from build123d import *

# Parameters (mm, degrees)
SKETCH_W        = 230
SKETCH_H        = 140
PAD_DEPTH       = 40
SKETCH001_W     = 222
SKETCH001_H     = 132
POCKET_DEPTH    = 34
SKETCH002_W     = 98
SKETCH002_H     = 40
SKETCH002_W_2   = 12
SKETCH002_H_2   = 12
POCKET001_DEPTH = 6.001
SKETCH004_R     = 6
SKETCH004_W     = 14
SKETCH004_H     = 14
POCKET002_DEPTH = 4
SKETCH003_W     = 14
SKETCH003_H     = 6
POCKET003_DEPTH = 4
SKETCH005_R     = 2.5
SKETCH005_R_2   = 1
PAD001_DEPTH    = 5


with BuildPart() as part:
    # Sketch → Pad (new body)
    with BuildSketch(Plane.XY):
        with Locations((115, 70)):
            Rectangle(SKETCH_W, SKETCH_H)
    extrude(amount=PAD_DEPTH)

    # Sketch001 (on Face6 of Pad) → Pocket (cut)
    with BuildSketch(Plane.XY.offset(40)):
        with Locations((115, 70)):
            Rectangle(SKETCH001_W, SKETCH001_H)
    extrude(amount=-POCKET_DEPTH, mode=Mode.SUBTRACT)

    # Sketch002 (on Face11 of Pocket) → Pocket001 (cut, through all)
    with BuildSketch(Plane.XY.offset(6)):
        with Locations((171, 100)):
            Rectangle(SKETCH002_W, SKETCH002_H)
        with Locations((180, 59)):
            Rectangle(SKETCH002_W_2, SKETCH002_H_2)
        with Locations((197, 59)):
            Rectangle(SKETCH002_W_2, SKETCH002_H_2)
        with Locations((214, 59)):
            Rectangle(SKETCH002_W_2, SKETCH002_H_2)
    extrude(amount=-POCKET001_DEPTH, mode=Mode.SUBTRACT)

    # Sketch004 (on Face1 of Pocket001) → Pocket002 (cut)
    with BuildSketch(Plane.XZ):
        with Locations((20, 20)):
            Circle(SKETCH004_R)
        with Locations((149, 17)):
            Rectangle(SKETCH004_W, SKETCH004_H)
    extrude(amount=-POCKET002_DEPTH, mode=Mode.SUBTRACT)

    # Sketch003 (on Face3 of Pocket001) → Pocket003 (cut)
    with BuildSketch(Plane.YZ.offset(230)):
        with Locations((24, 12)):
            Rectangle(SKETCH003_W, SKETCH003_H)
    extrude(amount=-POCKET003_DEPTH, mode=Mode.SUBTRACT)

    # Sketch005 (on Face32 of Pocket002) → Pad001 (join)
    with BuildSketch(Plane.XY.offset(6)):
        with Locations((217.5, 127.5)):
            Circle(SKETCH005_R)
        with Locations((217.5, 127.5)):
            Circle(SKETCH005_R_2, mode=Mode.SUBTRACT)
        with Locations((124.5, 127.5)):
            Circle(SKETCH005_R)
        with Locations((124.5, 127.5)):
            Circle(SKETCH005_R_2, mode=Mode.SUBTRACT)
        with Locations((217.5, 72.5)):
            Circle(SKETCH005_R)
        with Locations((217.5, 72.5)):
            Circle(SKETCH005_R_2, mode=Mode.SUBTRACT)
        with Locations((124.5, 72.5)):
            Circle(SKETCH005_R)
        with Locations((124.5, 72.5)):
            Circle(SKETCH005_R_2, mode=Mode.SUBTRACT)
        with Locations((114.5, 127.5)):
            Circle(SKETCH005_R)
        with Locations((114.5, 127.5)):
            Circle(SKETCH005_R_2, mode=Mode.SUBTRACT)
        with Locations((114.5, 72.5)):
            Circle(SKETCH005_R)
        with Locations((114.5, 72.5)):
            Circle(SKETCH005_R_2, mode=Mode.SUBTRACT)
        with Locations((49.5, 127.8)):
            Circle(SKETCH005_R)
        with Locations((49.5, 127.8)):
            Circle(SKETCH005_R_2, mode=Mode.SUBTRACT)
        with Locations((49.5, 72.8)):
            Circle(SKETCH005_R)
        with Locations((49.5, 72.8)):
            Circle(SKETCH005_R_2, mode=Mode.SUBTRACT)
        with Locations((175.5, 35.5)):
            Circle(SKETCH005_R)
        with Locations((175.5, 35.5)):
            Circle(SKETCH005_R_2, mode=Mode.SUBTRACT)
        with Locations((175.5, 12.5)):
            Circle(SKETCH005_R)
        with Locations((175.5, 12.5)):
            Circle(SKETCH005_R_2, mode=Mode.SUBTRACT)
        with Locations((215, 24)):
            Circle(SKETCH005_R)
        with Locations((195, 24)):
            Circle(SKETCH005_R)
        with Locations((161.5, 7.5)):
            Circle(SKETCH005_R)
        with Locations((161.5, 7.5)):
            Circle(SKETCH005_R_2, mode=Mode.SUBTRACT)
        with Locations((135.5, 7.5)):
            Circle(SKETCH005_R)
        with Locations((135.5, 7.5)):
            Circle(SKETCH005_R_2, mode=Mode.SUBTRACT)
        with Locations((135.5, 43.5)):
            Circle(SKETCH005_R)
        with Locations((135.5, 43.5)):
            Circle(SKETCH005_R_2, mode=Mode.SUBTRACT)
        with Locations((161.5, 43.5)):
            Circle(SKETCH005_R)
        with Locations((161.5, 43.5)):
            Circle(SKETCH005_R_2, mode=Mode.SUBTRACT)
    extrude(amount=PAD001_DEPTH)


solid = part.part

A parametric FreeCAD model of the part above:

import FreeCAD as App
import Part
import Sketcher
Q = App.Units.Quantity

doc = App.newDocument("Part")
body = doc.addObject("PartDesign::Body", "Body")

# Sketch on XY plane
sketch1 = body.newObject("Sketcher::SketchObject", "Sketch")
sketch1.AttachmentSupport = (doc.getObject("XY_Plane"), [""])
sketch1.MapMode = "FlatFace"
sketch1.addGeometry(Part.LineSegment(App.Vector(0, 140, 0), App.Vector(0, 0, 0)), False)
sketch1.addGeometry(Part.LineSegment(App.Vector(0, 0, 0), App.Vector(230, 0, 0)), False)
sketch1.addGeometry(Part.LineSegment(App.Vector(230, 0, 0), App.Vector(230, 140, 0)), False)
sketch1.addGeometry(Part.LineSegment(App.Vector(230, 140, 0), App.Vector(0, 140, 0)), False)
sketch1.addConstraint(Sketcher.Constraint("Coincident", 0, 2, 1, 1))
sketch1.addConstraint(Sketcher.Constraint("Coincident", 1, 2, 2, 1))
sketch1.addConstraint(Sketcher.Constraint("Coincident", 2, 2, 3, 1))
sketch1.addConstraint(Sketcher.Constraint("Coincident", 3, 2, 0, 1))
sketch1.addConstraint(Sketcher.Constraint("Vertical", 0))
sketch1.addConstraint(Sketcher.Constraint("Horizontal", 1))
sketch1.addConstraint(Sketcher.Constraint("Vertical", 2))
sketch1.addConstraint(Sketcher.Constraint("Horizontal", 3))
sketch1.addConstraint(Sketcher.Constraint("Coincident", 0, 2, -1, 1))
sketch1.addConstraint(Sketcher.Constraint("DistanceX", 1, 1, 1, 2, Q("230 mm")))
sketch1.addConstraint(Sketcher.Constraint("DistanceY", 0, 2, 0, 1, Q("140 mm")))
pad1 = body.newObject("PartDesign::Pad", "Pad")
pad1.Profile = sketch1
pad1.Length = 40

# Sketch on XY plane
sketch2 = body.newObject("Sketcher::SketchObject", "Sketch001")
sketch2.AttachmentSupport = (doc.getObject("XY_Plane"), [""])
sketch2.MapMode = "FlatFace"
sketch2.AttachmentOffset = App.Placement(App.Vector(0, 0, 40), App.Rotation())
sketch2.addGeometry(Part.LineSegment(App.Vector(4, 136, 0), App.Vector(4, 4, 0)), False)
sketch2.addGeometry(Part.LineSegment(App.Vector(4, 4, 0), App.Vector(226, 4, 0)), False)
sketch2.addGeometry(Part.LineSegment(App.Vector(226, 4, 0), App.Vector(226, 136, 0)), False)
sketch2.addGeometry(Part.LineSegment(App.Vector(226, 136, 0), App.Vector(4, 136, 0)), False)
sketch2.addConstraint(Sketcher.Constraint("Coincident", 0, 2, 1, 1))
sketch2.addConstraint(Sketcher.Constraint("Coincident", 1, 2, 2, 1))
sketch2.addConstraint(Sketcher.Constraint("Coincident", 2, 2, 3, 1))
sketch2.addConstraint(Sketcher.Constraint("Coincident", 3, 2, 0, 1))
sketch2.addConstraint(Sketcher.Constraint("Vertical", 0))
sketch2.addConstraint(Sketcher.Constraint("Horizontal", 1))
sketch2.addConstraint(Sketcher.Constraint("Vertical", 2))
sketch2.addConstraint(Sketcher.Constraint("Horizontal", 3))
sketch2.addConstraint(Sketcher.Constraint("DistanceX", 1, 1, 1, 2, Q("222 mm")))
sketch2.addConstraint(Sketcher.Constraint("DistanceY", 0, 2, 0, 1, Q("132 mm")))
sketch2.addConstraint(Sketcher.Constraint("DistanceX", -1, 1, 0, 2, Q("4 mm")))
sketch2.addConstraint(Sketcher.Constraint("DistanceY", -1, 1, 0, 2, Q("4 mm")))
pocket1 = body.newObject("PartDesign::Pocket", "Pocket")
pocket1.Profile = sketch2
pocket1.Length = 34

# Sketch on XY plane
sketch3 = body.newObject("Sketcher::SketchObject", "Sketch002")
sketch3.AttachmentSupport = (doc.getObject("XY_Plane"), [""])
sketch3.MapMode = "FlatFace"
sketch3.AttachmentOffset = App.Placement(App.Vector(0, 0, 6), App.Rotation())
sketch3.addGeometry(Part.LineSegment(App.Vector(122, 120, 0), App.Vector(122, 80, 0)), False)
sketch3.addGeometry(Part.LineSegment(App.Vector(122, 80, 0), App.Vector(220, 80, 0)), False)
sketch3.addGeometry(Part.LineSegment(App.Vector(220, 80, 0), App.Vector(220, 120, 0)), False)
sketch3.addGeometry(Part.LineSegment(App.Vector(220, 120, 0), App.Vector(122, 120, 0)), False)
sketch3.addGeometry(Part.LineSegment(App.Vector(174, 65, 0), App.Vector(174, 53, 0)), False)
sketch3.addGeometry(Part.LineSegment(App.Vector(174, 53, 0), App.Vector(186, 53, 0)), False)
sketch3.addGeometry(Part.LineSegment(App.Vector(186, 53, 0), App.Vector(186, 65, 0)), False)
sketch3.addGeometry(Part.LineSegment(App.Vector(186, 65, 0), App.Vector(174, 65, 0)), False)
sketch3.addGeometry(Part.LineSegment(App.Vector(191, 65, 0), App.Vector(191, 53, 0)), False)
sketch3.addGeometry(Part.LineSegment(App.Vector(191, 53, 0), App.Vector(203, 53, 0)), False)
sketch3.addGeometry(Part.LineSegment(App.Vector(203, 53, 0), App.Vector(203, 65, 0)), False)
sketch3.addGeometry(Part.LineSegment(App.Vector(203, 65, 0), App.Vector(191, 65, 0)), False)
sketch3.addGeometry(Part.LineSegment(App.Vector(208, 65, 0), App.Vector(208, 53, 0)), False)
sketch3.addGeometry(Part.LineSegment(App.Vector(208, 53, 0), App.Vector(220, 53, 0)), False)
sketch3.addGeometry(Part.LineSegment(App.Vector(220, 53, 0), App.Vector(220, 65, 0)), False)
sketch3.addGeometry(Part.LineSegment(App.Vector(220, 65, 0), App.Vector(208, 65, 0)), False)
sketch3.addConstraint(Sketcher.Constraint("Coincident", 0, 2, 1, 1))
sketch3.addConstraint(Sketcher.Constraint("Coincident", 1, 2, 2, 1))
sketch3.addConstraint(Sketcher.Constraint("Coincident", 2, 2, 3, 1))
sketch3.addConstraint(Sketcher.Constraint("Coincident", 3, 2, 0, 1))
sketch3.addConstraint(Sketcher.Constraint("Coincident", 4, 2, 5, 1))
sketch3.addConstraint(Sketcher.Constraint("Coincident", 5, 2, 6, 1))
sketch3.addConstraint(Sketcher.Constraint("Coincident", 6, 2, 7, 1))
sketch3.addConstraint(Sketcher.Constraint("Coincident", 7, 2, 4, 1))
sketch3.addConstraint(Sketcher.Constraint("Coincident", 8, 2, 9, 1))
sketch3.addConstraint(Sketcher.Constraint("Coincident", 9, 2, 10, 1))
sketch3.addConstraint(Sketcher.Constraint("Coincident", 10, 2, 11, 1))
sketch3.addConstraint(Sketcher.Constraint("Coincident", 11, 2, 8, 1))
sketch3.addConstraint(Sketcher.Constraint("Coincident", 12, 2, 13, 1))
sketch3.addConstraint(Sketcher.Constraint("Coincident", 13, 2, 14, 1))
sketch3.addConstraint(Sketcher.Constraint("Coincident", 14, 2, 15, 1))
sketch3.addConstraint(Sketcher.Constraint("Coincident", 15, 2, 12, 1))
sketch3.addConstraint(Sketcher.Constraint("Vertical", 0))
sketch3.addConstraint(Sketcher.Constraint("Horizontal", 1))
sketch3.addConstraint(Sketcher.Constraint("Vertical", 2))
sketch3.addConstraint(Sketcher.Constraint("Horizontal", 3))
sketch3.addConstraint(Sketcher.Constraint("Vertical", 4))
sketch3.addConstraint(Sketcher.Constraint("Horizontal", 5))
sketch3.addConstraint(Sketcher.Constraint("Vertical", 6))
sketch3.addConstraint(Sketcher.Constraint("Horizontal", 7))
sketch3.addConstraint(Sketcher.Constraint("Vertical", 8))
sketch3.addConstraint(Sketcher.Constraint("Horizontal", 9))
sketch3.addConstraint(Sketcher.Constraint("Vertical", 10))
sketch3.addConstraint(Sketcher.Constraint("Horizontal", 11))
sketch3.addConstraint(Sketcher.Constraint("Vertical", 12))
sketch3.addConstraint(Sketcher.Constraint("Horizontal", 13))
sketch3.addConstraint(Sketcher.Constraint("Vertical", 14))
sketch3.addConstraint(Sketcher.Constraint("Horizontal", 15))
sketch3.addConstraint(Sketcher.Constraint("Horizontal", 5, 2, 8, 2))
sketch3.addConstraint(Sketcher.Constraint("Horizontal", 7, 2, 10, 2))
sketch3.addConstraint(Sketcher.Constraint("Horizontal", 9, 2, 12, 2))
sketch3.addConstraint(Sketcher.Constraint("Horizontal", 11, 2, 14, 2))
sketch3.addConstraint(Sketcher.Constraint("Vertical", 2, 2, 13, 2))
sketch3.addConstraint(Sketcher.Constraint("Equal", 7, 9))
sketch3.addConstraint(Sketcher.Constraint("Equal", 11, 13))
sketch3.addConstraint(Sketcher.Constraint("Equal", 15, 4))
sketch3.addConstraint(Sketcher.Constraint("DistanceX", 1, 1, 1, 2, Q("98 mm")))
sketch3.addConstraint(Sketcher.Constraint("DistanceX", 5, 1, 5, 2, Q("12 mm")))
sketch3.addConstraint(Sketcher.Constraint("DistanceY", 0, 2, 0, 1, Q("40 mm")))
sketch3.addConstraint(Sketcher.Constraint("DistanceX", -1, 1, 0, 2, Q("122 mm")))
sketch3.addConstraint(Sketcher.Constraint("DistanceY", -1, 1, 0, 2, Q("80 mm")))
sketch3.addConstraint(Sketcher.Constraint("DistanceX", -1, 1, 4, 2, Q("174 mm")))
sketch3.addConstraint(Sketcher.Constraint("DistanceY", -1, 1, 4, 2, Q("53 mm")))
sketch3.addConstraint(Sketcher.Constraint("DistanceX", -1, 1, 8, 2, Q("191 mm")))
pocket2 = body.newObject("PartDesign::Pocket", "Pocket001")
pocket2.Profile = sketch3
pocket2.Type = "ThroughAll"

# Sketch on XZ plane
sketch4 = body.newObject("Sketcher::SketchObject", "Sketch003")
sketch4.AttachmentSupport = (doc.getObject("XZ_Plane"), [""])
sketch4.MapMode = "FlatFace"
sketch4.addGeometry(Part.Circle(App.Vector(20, 20, 0), App.Vector(0, 0, 1), 6), False)
sketch4.addGeometry(Part.LineSegment(App.Vector(142, 24, 0), App.Vector(142, 10, 0)), False)
sketch4.addGeometry(Part.LineSegment(App.Vector(142, 10, 0), App.Vector(156, 10, 0)), False)
sketch4.addGeometry(Part.LineSegment(App.Vector(156, 10, 0), App.Vector(156, 24, 0)), False)
sketch4.addGeometry(Part.LineSegment(App.Vector(156, 24, 0), App.Vector(142, 24, 0)), False)
sketch4.addConstraint(Sketcher.Constraint("Coincident", 1, 2, 2, 1))
sketch4.addConstraint(Sketcher.Constraint("Coincident", 2, 2, 3, 1))
sketch4.addConstraint(Sketcher.Constraint("Coincident", 3, 2, 4, 1))
sketch4.addConstraint(Sketcher.Constraint("Coincident", 4, 2, 1, 1))
sketch4.addConstraint(Sketcher.Constraint("Vertical", 1))
sketch4.addConstraint(Sketcher.Constraint("Horizontal", 2))
sketch4.addConstraint(Sketcher.Constraint("Vertical", 3))
sketch4.addConstraint(Sketcher.Constraint("Horizontal", 4))
sketch4.addConstraint(Sketcher.Constraint("Equal", 4, 1))
sketch4.addConstraint(Sketcher.Constraint("Diameter", 0, Q("12 mm")))
sketch4.addConstraint(Sketcher.Constraint("DistanceX", 2, 1, 2, 2, Q("14 mm")))
sketch4.addConstraint(Sketcher.Constraint("DistanceX", -1, 1, 0, 3, Q("20 mm")))
sketch4.addConstraint(Sketcher.Constraint("DistanceY", -1, 1, 0, 3, Q("20 mm")))
sketch4.addConstraint(Sketcher.Constraint("DistanceX", -1, 1, 1, 2, Q("142 mm")))
sketch4.addConstraint(Sketcher.Constraint("DistanceY", -1, 1, 1, 2, Q("10 mm")))
pocket3 = body.newObject("PartDesign::Pocket", "Pocket002")
pocket3.Profile = sketch4
pocket3.Length = 4

# Sketch on YZ plane
sketch5 = body.newObject("Sketcher::SketchObject", "Sketch004")
sketch5.AttachmentSupport = (doc.getObject("YZ_Plane"), [""])
sketch5.MapMode = "FlatFace"
sketch5.AttachmentOffset = App.Placement(App.Vector(0, 0, 230), App.Rotation())
sketch5.addGeometry(Part.LineSegment(App.Vector(17, 15, 0), App.Vector(17, 9, 0)), False)
sketch5.addGeometry(Part.LineSegment(App.Vector(17, 9, 0), App.Vector(31, 9, 0)), False)
sketch5.addGeometry(Part.LineSegment(App.Vector(31, 9, 0), App.Vector(31, 15, 0)), False)
sketch5.addGeometry(Part.LineSegment(App.Vector(31, 15, 0), App.Vector(17, 15, 0)), False)
sketch5.addConstraint(Sketcher.Constraint("Coincident", 0, 2, 1, 1))
sketch5.addConstraint(Sketcher.Constraint("Coincident", 1, 2, 2, 1))
sketch5.addConstraint(Sketcher.Constraint("Coincident", 2, 2, 3, 1))
sketch5.addConstraint(Sketcher.Constraint("Coincident", 3, 2, 0, 1))
sketch5.addConstraint(Sketcher.Constraint("Vertical", 0))
sketch5.addConstraint(Sketcher.Constraint("Horizontal", 1))
sketch5.addConstraint(Sketcher.Constraint("Vertical", 2))
sketch5.addConstraint(Sketcher.Constraint("Horizontal", 3))
sketch5.addConstraint(Sketcher.Constraint("DistanceX", 1, 1, 1, 2, Q("14 mm")))
sketch5.addConstraint(Sketcher.Constraint("DistanceY", 0, 2, 0, 1, Q("6 mm")))
sketch5.addConstraint(Sketcher.Constraint("DistanceX", -1, 1, 0, 2, Q("17 mm")))
sketch5.addConstraint(Sketcher.Constraint("DistanceY", -1, 1, 0, 2, Q("9 mm")))
pocket4 = body.newObject("PartDesign::Pocket", "Pocket003")
pocket4.Profile = sketch5
pocket4.Length = 4

# Sketch on XY plane
sketch6 = body.newObject("Sketcher::SketchObject", "Sketch005")
sketch6.AttachmentSupport = (doc.getObject("XY_Plane"), [""])
sketch6.MapMode = "FlatFace"
sketch6.AttachmentOffset = App.Placement(App.Vector(0, 0, 6), App.Rotation())
sketch6.addGeometry(Part.Circle(App.Vector(217.5, 127.5, 0), App.Vector(0, 0, 1), 2.5), False)
sketch6.addGeometry(Part.Circle(App.Vector(217.5, 127.5, 0), App.Vector(0, 0, 1), 1), False)
sketch6.addGeometry(Part.Circle(App.Vector(124.5, 127.5, 0), App.Vector(0, 0, 1), 2.5), False)
sketch6.addGeometry(Part.Circle(App.Vector(124.5, 127.5, 0), App.Vector(0, 0, 1), 1), False)
sketch6.addGeometry(Part.Circle(App.Vector(217.5, 72.5, 0), App.Vector(0, 0, 1), 2.5), False)
sketch6.addGeometry(Part.Circle(App.Vector(217.5, 72.5, 0), App.Vector(0, 0, 1), 1), False)
sketch6.addGeometry(Part.Circle(App.Vector(124.5, 72.5, 0), App.Vector(0, 0, 1), 2.5), False)
sketch6.addGeometry(Part.Circle(App.Vector(124.5, 72.5, 0), App.Vector(0, 0, 1), 1), False)
sketch6.addGeometry(Part.Circle(App.Vector(114.5, 127.5, 0), App.Vector(0, 0, 1), 2.5), False)
sketch6.addGeometry(Part.Circle(App.Vector(114.5, 127.5, 0), App.Vector(0, 0, 1), 1), False)
sketch6.addGeometry(Part.Circle(App.Vector(114.5, 72.5, 0), App.Vector(0, 0, 1), 2.5), False)
sketch6.addGeometry(Part.Circle(App.Vector(114.5, 72.5, 0), App.Vector(0, 0, 1), 1), False)
sketch6.addGeometry(Part.Circle(App.Vector(49.5, 127.8, 0), App.Vector(0, 0, 1), 2.5), False)
sketch6.addGeometry(Part.Circle(App.Vector(49.5, 127.8, 0), App.Vector(0, 0, 1), 1), False)
sketch6.addGeometry(Part.Circle(App.Vector(49.5, 72.8, 0), App.Vector(0, 0, 1), 2.5), False)
sketch6.addGeometry(Part.Circle(App.Vector(49.5, 72.8, 0), App.Vector(0, 0, 1), 1), False)
sketch6.addGeometry(Part.Circle(App.Vector(175.5, 35.5, 0), App.Vector(0, 0, 1), 2.5), False)
sketch6.addGeometry(Part.Circle(App.Vector(175.5, 35.5, 0), App.Vector(0, 0, 1), 1), False)
sketch6.addGeometry(Part.Circle(App.Vector(175.5, 12.5, 0), App.Vector(0, 0, 1), 2.5), False)
sketch6.addGeometry(Part.Circle(App.Vector(175.5, 12.5, 0), App.Vector(0, 0, 1), 1), False)
sketch6.addGeometry(Part.Circle(App.Vector(215, 24, 0), App.Vector(0, 0, 1), 2.5), False)
sketch6.addGeometry(Part.Circle(App.Vector(195, 24, 0), App.Vector(0, 0, 1), 2.5), False)
sketch6.addGeometry(Part.Circle(App.Vector(161.5, 7.5, 0), App.Vector(0, 0, 1), 2.5), False)
sketch6.addGeometry(Part.Circle(App.Vector(161.5, 7.5, 0), App.Vector(0, 0, 1), 1), False)
sketch6.addGeometry(Part.Circle(App.Vector(135.5, 7.5, 0), App.Vector(0, 0, 1), 2.5), False)
sketch6.addGeometry(Part.Circle(App.Vector(135.5, 7.5, 0), App.Vector(0, 0, 1), 1), False)
sketch6.addGeometry(Part.Circle(App.Vector(135.5, 43.5, 0), App.Vector(0, 0, 1), 2.5), False)
sketch6.addGeometry(Part.Circle(App.Vector(135.5, 43.5, 0), App.Vector(0, 0, 1), 1), False)
sketch6.addGeometry(Part.Circle(App.Vector(161.5, 43.5, 0), App.Vector(0, 0, 1), 2.5), False)
sketch6.addGeometry(Part.Circle(App.Vector(161.5, 43.5, 0), App.Vector(0, 0, 1), 1), False)
sketch6.addConstraint(Sketcher.Constraint("Coincident", 1, 3, 0, 3))
sketch6.addConstraint(Sketcher.Constraint("Coincident", 3, 3, 2, 3))
sketch6.addConstraint(Sketcher.Constraint("Coincident", 5, 3, 4, 3))
sketch6.addConstraint(Sketcher.Constraint("Coincident", 7, 3, 6, 3))
sketch6.addConstraint(Sketcher.Constraint("Coincident", 9, 3, 8, 3))
sketch6.addConstraint(Sketcher.Constraint("Coincident", 11, 3, 10, 3))
sketch6.addConstraint(Sketcher.Constraint("Coincident", 13, 3, 12, 3))
sketch6.addConstraint(Sketcher.Constraint("Coincident", 15, 3, 14, 3))
sketch6.addConstraint(Sketcher.Constraint("Coincident", 17, 3, 16, 3))
sketch6.addConstraint(Sketcher.Constraint("Coincident", 19, 3, 18, 3))
sketch6.addConstraint(Sketcher.Constraint("Coincident", 23, 3, 22, 3))
sketch6.addConstraint(Sketcher.Constraint("Coincident", 25, 3, 24, 3))
sketch6.addConstraint(Sketcher.Constraint("Coincident", 27, 3, 26, 3))
sketch6.addConstraint(Sketcher.Constraint("Coincident", 29, 3, 28, 3))
sketch6.addConstraint(Sketcher.Constraint("Equal", 0, 2))
sketch6.addConstraint(Sketcher.Constraint("Equal", 1, 3))
sketch6.addConstraint(Sketcher.Constraint("Equal", 2, 4))
sketch6.addConstraint(Sketcher.Constraint("Equal", 3, 5))
sketch6.addConstraint(Sketcher.Constraint("Equal", 4, 6))
sketch6.addConstraint(Sketcher.Constraint("Equal", 5, 7))
sketch6.addConstraint(Sketcher.Constraint("Equal", 6, 8))
sketch6.addConstraint(Sketcher.Constraint("Equal", 7, 9))
sketch6.addConstraint(Sketcher.Constraint("Equal", 8, 10))
sketch6.addConstraint(Sketcher.Constraint("Equal", 9, 11))
sketch6.addConstraint(Sketcher.Constraint("Equal", 10, 12))
sketch6.addConstraint(Sketcher.Constraint("Equal", 11, 13))
sketch6.addConstraint(Sketcher.Constraint("Equal", 12, 14))
sketch6.addConstraint(Sketcher.Constraint("Equal", 13, 15))
sketch6.addConstraint(Sketcher.Constraint("Equal", 14, 16))
sketch6.addConstraint(Sketcher.Constraint("Equal", 15, 17))
sketch6.addConstraint(Sketcher.Constraint("Equal", 16, 18))
sketch6.addConstraint(Sketcher.Constraint("Equal", 17, 19))
sketch6.addConstraint(Sketcher.Constraint("Equal", 18, 20))
sketch6.addConstraint(Sketcher.Constraint("Equal", 20, 21))
sketch6.addConstraint(Sketcher.Constraint("Equal", 21, 22))
sketch6.addConstraint(Sketcher.Constraint("Equal", 19, 23))
sketch6.addConstraint(Sketcher.Constraint("Equal", 22, 24))
sketch6.addConstraint(Sketcher.Constraint("Equal", 23, 25))
sketch6.addConstraint(Sketcher.Constraint("Equal", 24, 26))
sketch6.addConstraint(Sketcher.Constraint("Equal", 25, 27))
sketch6.addConstraint(Sketcher.Constraint("Equal", 26, 28))
sketch6.addConstraint(Sketcher.Constraint("Equal", 27, 29))
sketch6.addConstraint(Sketcher.Constraint("Horizontal", 1, 3, 2, 3))
sketch6.addConstraint(Sketcher.Constraint("Horizontal", 5, 3, 6, 3))
sketch6.addConstraint(Sketcher.Constraint("Horizontal", 3, 3, 8, 3))
sketch6.addConstraint(Sketcher.Constraint("Horizontal", 7, 3, 10, 3))
sketch6.addConstraint(Sketcher.Constraint("Horizontal", 20, 3, 21, 3))
sketch6.addConstraint(Sketcher.Constraint("Horizontal", 23, 3, 24, 3))
sketch6.addConstraint(Sketcher.Constraint("Horizontal", 27, 3, 28, 3))
sketch6.addConstraint(Sketcher.Constraint("Vertical", 1, 3, 4, 3))
sketch6.addConstraint(Sketcher.Constraint("Vertical", 3, 3, 6, 3))
sketch6.addConstraint(Sketcher.Constraint("Vertical", 9, 3, 10, 3))
sketch6.addConstraint(Sketcher.Constraint("Vertical", 13, 3, 14, 3))
sketch6.addConstraint(Sketcher.Constraint("Vertical", 17, 3, 18, 3))
sketch6.addConstraint(Sketcher.Constraint("Vertical", 25, 3, 26, 3))
sketch6.addConstraint(Sketcher.Constraint("Vertical", 23, 3, 28, 3))
sketch6.addConstraint(Sketcher.Constraint("Diameter", 0, Q("5 mm")))
sketch6.addConstraint(Sketcher.Constraint("Diameter", 1, Q("2 mm")))
sketch6.addConstraint(Sketcher.Constraint("DistanceX", -1, 1, 20, 3, Q("215 mm")))
sketch6.addConstraint(Sketcher.Constraint("DistanceY", -1, 1, 20, 3, Q("24 mm")))
sketch6.addConstraint(Sketcher.Constraint("DistanceX", -1, 1, 21, 3, Q("195 mm")))
sketch6.addConstraint(Sketcher.Constraint("DistanceX", 2, 3, 0, 3, Q("93 mm")))
sketch6.addConstraint(Sketcher.Constraint("DistanceY", 4, 3, 0, 3, Q("55 mm")))
sketch6.addConstraint(Sketcher.Constraint("DistanceX", 8, 3, 2, 3, Q("10 mm")))
sketch6.addConstraint(Sketcher.Constraint("DistanceX", 12, 3, 8, 3, Q("65 mm")))
sketch6.addConstraint(Sketcher.Constraint("DistanceY", 14, 3, 12, 3, Q("55 mm")))
sketch6.addConstraint(Sketcher.Constraint("DistanceX", 16, 3, 4, 3, Q("42 mm")))
sketch6.addConstraint(Sketcher.Constraint("DistanceY", 16, 3, 4, 3, Q("37 mm")))
sketch6.addConstraint(Sketcher.Constraint("DistanceY", 18, 3, 16, 3, Q("23 mm")))
sketch6.addConstraint(Sketcher.Constraint("DistanceX", 22, 3, 18, 3, Q("14 mm")))
sketch6.addConstraint(Sketcher.Constraint("DistanceY", 22, 3, 18, 3, Q("5 mm")))
sketch6.addConstraint(Sketcher.Constraint("DistanceX", 24, 3, 22, 3, Q("26 mm")))
sketch6.addConstraint(Sketcher.Constraint("DistanceY", 26, 3, 6, 3, Q("29 mm")))
sketch6.addConstraint(Sketcher.Constraint("DistanceX", -1, 1, 0, 3, Q("217.5 mm")))
sketch6.addConstraint(Sketcher.Constraint("DistanceY", -1, 1, 0, 3, Q("127.5 mm")))
sketch6.addConstraint(Sketcher.Constraint("DistanceY", -1, 1, 12, 3, Q("127.8 mm")))
pad2 = body.newObject("PartDesign::Pad", "Pad001")
pad2.Profile = sketch6
pad2.Length = 5

doc.recompute()
